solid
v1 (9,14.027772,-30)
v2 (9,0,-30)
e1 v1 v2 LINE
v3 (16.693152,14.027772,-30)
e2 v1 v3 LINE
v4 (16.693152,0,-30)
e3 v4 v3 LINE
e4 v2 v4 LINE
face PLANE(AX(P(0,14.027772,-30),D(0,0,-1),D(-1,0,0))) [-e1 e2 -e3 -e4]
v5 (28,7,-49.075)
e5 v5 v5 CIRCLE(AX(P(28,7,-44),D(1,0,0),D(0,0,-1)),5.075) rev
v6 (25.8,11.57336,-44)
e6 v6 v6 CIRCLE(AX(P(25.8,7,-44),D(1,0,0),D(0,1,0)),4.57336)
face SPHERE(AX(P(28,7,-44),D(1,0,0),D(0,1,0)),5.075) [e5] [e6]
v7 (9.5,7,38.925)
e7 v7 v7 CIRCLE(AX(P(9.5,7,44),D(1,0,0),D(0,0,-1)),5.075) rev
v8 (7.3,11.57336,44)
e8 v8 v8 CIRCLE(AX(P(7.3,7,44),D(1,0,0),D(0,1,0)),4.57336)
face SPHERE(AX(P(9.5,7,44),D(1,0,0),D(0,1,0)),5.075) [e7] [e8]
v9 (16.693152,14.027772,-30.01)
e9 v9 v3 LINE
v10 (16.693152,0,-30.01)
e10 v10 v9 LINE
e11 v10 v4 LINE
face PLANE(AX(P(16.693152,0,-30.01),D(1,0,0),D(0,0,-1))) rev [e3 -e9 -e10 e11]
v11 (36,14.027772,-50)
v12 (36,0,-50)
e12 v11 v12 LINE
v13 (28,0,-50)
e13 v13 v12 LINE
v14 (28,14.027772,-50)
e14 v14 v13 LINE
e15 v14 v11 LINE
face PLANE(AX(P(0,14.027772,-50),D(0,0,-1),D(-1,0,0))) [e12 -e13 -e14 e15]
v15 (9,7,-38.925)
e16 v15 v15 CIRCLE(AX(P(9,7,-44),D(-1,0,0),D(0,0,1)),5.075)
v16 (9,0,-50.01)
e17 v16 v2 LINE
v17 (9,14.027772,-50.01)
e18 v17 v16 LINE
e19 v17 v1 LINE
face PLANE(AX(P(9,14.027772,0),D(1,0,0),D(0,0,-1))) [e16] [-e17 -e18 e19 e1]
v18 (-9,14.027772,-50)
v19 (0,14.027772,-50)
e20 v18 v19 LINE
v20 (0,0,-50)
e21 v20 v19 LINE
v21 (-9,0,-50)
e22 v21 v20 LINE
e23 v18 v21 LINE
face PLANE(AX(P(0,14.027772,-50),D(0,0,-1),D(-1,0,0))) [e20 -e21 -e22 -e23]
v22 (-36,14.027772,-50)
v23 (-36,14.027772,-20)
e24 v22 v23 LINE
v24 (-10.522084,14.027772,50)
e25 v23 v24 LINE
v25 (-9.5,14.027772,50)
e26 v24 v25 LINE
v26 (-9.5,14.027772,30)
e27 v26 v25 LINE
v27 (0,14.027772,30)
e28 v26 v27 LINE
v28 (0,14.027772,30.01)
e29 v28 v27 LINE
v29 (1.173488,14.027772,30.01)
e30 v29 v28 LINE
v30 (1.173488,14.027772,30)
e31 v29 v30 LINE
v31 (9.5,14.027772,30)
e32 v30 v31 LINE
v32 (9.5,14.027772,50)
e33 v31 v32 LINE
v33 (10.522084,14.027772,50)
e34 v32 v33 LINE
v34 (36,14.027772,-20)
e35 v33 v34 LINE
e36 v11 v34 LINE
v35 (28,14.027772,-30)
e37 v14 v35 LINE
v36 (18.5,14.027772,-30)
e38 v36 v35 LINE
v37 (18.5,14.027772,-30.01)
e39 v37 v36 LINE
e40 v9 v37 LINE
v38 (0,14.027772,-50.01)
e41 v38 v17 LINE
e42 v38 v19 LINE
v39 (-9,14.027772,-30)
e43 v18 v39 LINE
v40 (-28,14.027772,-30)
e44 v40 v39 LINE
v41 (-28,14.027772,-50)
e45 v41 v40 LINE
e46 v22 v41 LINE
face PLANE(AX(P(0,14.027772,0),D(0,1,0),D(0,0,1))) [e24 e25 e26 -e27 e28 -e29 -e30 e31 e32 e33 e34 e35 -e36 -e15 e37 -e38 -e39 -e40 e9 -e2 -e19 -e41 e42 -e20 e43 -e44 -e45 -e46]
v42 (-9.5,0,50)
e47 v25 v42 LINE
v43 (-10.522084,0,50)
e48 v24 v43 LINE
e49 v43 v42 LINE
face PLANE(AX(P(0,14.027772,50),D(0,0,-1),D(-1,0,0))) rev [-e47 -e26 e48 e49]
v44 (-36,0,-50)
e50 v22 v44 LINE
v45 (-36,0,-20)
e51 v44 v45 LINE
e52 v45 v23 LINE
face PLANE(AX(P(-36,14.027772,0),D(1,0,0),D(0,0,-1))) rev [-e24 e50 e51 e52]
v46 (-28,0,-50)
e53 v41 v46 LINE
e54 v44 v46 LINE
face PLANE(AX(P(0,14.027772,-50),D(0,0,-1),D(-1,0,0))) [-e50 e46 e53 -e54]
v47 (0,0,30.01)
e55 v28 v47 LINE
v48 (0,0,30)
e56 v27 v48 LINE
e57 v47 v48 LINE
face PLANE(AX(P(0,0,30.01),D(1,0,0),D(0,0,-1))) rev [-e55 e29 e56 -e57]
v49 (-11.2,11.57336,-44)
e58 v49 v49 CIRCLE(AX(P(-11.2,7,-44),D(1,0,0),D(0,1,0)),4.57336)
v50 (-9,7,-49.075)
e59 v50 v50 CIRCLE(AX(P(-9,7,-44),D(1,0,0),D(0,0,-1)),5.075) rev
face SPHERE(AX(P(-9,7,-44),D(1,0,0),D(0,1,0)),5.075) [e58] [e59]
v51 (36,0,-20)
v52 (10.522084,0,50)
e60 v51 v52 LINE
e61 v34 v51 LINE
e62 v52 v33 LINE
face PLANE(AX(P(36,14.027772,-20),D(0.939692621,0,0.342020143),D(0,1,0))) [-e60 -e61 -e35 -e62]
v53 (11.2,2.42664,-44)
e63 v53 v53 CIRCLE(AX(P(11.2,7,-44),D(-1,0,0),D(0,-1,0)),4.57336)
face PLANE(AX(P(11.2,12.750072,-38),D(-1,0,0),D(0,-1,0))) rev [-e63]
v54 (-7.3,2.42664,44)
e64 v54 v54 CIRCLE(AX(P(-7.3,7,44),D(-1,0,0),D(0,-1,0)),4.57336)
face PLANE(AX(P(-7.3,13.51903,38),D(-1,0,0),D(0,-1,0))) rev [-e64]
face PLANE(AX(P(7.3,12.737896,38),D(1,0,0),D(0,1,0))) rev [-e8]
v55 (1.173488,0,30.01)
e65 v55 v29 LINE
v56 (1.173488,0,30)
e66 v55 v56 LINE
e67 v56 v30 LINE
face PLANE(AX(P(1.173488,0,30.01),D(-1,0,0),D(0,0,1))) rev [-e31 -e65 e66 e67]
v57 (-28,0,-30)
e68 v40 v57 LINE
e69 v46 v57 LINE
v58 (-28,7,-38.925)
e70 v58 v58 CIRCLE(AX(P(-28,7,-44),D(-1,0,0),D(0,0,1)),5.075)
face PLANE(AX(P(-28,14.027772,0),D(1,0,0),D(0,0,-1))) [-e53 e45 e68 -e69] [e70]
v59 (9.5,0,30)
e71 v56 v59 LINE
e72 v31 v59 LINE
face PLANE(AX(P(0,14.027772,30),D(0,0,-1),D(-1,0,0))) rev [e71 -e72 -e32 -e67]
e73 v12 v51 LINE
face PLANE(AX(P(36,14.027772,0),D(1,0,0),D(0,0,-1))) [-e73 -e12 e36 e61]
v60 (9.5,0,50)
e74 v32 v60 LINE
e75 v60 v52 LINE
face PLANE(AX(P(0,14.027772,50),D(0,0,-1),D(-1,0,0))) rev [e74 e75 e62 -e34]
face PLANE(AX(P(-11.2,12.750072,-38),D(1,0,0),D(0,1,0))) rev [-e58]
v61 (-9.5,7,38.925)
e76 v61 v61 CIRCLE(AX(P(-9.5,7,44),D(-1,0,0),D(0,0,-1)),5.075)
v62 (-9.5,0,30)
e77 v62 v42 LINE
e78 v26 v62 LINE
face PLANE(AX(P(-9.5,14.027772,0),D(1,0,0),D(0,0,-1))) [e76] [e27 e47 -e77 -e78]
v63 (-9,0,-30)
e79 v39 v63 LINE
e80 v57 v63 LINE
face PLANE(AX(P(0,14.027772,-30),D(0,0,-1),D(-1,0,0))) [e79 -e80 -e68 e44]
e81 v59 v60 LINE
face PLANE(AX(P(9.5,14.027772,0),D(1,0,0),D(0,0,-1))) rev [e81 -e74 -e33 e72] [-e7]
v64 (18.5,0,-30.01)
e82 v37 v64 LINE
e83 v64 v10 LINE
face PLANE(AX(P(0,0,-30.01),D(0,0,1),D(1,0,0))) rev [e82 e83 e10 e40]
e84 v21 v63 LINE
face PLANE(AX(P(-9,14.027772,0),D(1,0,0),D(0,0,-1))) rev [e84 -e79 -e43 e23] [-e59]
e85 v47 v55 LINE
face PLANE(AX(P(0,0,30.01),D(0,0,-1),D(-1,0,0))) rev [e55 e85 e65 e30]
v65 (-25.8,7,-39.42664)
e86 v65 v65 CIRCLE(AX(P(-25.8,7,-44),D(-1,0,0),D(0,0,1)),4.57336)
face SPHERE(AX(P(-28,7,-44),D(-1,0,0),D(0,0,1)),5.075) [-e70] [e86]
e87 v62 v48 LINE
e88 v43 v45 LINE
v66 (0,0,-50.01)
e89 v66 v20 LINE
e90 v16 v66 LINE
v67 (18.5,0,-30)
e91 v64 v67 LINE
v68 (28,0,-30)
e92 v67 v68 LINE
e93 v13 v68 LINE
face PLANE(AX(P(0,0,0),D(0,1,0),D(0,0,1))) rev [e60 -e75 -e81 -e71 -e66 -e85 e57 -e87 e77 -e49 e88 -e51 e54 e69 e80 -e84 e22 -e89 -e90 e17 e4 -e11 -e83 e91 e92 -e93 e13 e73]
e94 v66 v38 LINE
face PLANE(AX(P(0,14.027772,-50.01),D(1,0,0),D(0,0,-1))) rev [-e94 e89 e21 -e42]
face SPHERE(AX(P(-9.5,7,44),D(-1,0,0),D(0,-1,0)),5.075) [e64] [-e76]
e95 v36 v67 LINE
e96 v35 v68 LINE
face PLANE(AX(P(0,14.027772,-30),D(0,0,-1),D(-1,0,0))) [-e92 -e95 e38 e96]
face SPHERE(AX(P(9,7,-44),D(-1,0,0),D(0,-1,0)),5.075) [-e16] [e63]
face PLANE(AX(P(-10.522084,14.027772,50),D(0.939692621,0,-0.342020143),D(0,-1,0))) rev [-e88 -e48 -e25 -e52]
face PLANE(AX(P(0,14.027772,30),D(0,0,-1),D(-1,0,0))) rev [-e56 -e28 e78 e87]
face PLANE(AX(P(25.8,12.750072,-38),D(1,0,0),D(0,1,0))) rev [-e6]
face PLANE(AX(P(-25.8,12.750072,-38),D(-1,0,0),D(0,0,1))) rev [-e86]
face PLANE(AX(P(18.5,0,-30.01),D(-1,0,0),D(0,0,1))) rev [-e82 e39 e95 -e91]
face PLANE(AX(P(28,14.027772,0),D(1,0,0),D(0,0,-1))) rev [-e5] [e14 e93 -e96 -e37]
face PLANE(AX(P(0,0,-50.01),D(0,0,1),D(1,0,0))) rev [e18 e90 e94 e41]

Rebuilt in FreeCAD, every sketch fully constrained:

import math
import FreeCAD as App
import Part
import Sketcher


def edges_at(feature, points):
    """Names of the edges that pass closest to the given points."""
    edges = feature.Shape.Edges
    near = lambda p: min(range(len(edges)), key=lambda i: edges[i].distToShape(Part.Vertex(*p))[0])
    return sorted({f"Edge{near(p) + 1}" for p in points})

doc = App.newDocument("Part")
body = doc.addObject("PartDesign::Body", "Body")

# Sketch on XZ plane
sketch1 = doc.addObject("Sketcher::SketchObject", "Sketch")
body.addObject(sketch1)
sketch1.AttachmentSupport = (doc.XZ_Plane, [""])
sketch1.MapMode = "FlatFace"
sketch1.addGeometry(Part.LineSegment(App.Vector(-28, -50, 0), App.Vector(-36, -50, 0)), False)
sketch1.addGeometry(Part.LineSegment(App.Vector(-36, -50, 0), App.Vector(-36, 50, 0)), False)
sketch1.addGeometry(Part.LineSegment(App.Vector(-36, 50, 0), App.Vector(-9.5, 50, 0)), False)
sketch1.addGeometry(Part.LineSegment(App.Vector(-9.5, 50, 0), App.Vector(-9.5, 30, 0)), False)
sketch1.addGeometry(Part.LineSegment(App.Vector(-9.5, 30, 0), App.Vector(9.5, 30, 0)), False)
sketch1.addGeometry(Part.LineSegment(App.Vector(9.5, 30, 0), App.Vector(9.5, 50, 0)), False)
sketch1.addGeometry(Part.LineSegment(App.Vector(9.5, 50, 0), App.Vector(36, 50, 0)), False)
sketch1.addGeometry(Part.LineSegment(App.Vector(36, 50, 0), App.Vector(36, -50, 0)), False)
sketch1.addGeometry(Part.LineSegment(App.Vector(36, -50, 0), App.Vector(28, -50, 0)), False)
sketch1.addGeometry(Part.LineSegment(App.Vector(28, -50, 0), App.Vector(28, -30, 0)), False)
sketch1.addGeometry(Part.LineSegment(App.Vector(28, -30, 0), App.Vector(9, -30, 0)), False)
sketch1.addGeometry(Part.LineSegment(App.Vector(9, -30, 0), App.Vector(9, -50, 0)), False)
sketch1.addGeometry(Part.LineSegment(App.Vector(9, -50, 0), App.Vector(-9, -50, 0)), False)
sketch1.addGeometry(Part.LineSegment(App.Vector(-9, -50, 0), App.Vector(-9, -30, 0)), False)
sketch1.addGeometry(Part.LineSegment(App.Vector(-9, -30, 0), App.Vector(-28, -30, 0)), False)
sketch1.addGeometry(Part.LineSegment(App.Vector(-28, -30, 0), App.Vector(-28, -50, 0)), False)
sketch1.addConstraint(Sketcher.Constraint("Coincident", 0, 2, 1, 1))
sketch1.addConstraint(Sketcher.Constraint("Coincident", 1, 2, 2, 1))
sketch1.addConstraint(Sketcher.Constraint("Coincident", 2, 2, 3, 1))
sketch1.addConstraint(Sketcher.Constraint("Coincident", 3, 2, 4, 1))
sketch1.addConstraint(Sketcher.Constraint("Coincident", 4, 2, 5, 1))
sketch1.addConstraint(Sketcher.Constraint("Coincident", 5, 2, 6, 1))
sketch1.addConstraint(Sketcher.Constraint("Coincident", 6, 2, 7, 1))
sketch1.addConstraint(Sketcher.Constraint("Coincident", 7, 2, 8, 1))
sketch1.addConstraint(Sketcher.Constraint("Coincident", 8, 2, 9, 1))
sketch1.addConstraint(Sketcher.Constraint("Coincident", 9, 2, 10, 1))
sketch1.addConstraint(Sketcher.Constraint("Coincident", 10, 2, 11, 1))
sketch1.addConstraint(Sketcher.Constraint("Coincident", 11, 2, 12, 1))
sketch1.addConstraint(Sketcher.Constraint("Coincident", 12, 2, 13, 1))
sketch1.addConstraint(Sketcher.Constraint("Coincident", 13, 2, 14, 1))
sketch1.addConstraint(Sketcher.Constraint("Coincident", 14, 2, 15, 1))
sketch1.addConstraint(Sketcher.Constraint("Coincident", 15, 2, 0, 1))
sketch1.addConstraint(Sketcher.Constraint("Horizontal", 0))
sketch1.addConstraint(Sketcher.Constraint("Vertical", 1))
sketch1.addConstraint(Sketcher.Constraint("Horizontal", 2))
sketch1.addConstraint(Sketcher.Constraint("Vertical", 3))
sketch1.addConstraint(Sketcher.Constraint("Horizontal", 4))
sketch1.addConstraint(Sketcher.Constraint("Vertical", 5))
sketch1.addConstraint(Sketcher.Constraint("Horizontal", 6))
sketch1.addConstraint(Sketcher.Constraint("Vertical", 7))
sketch1.addConstraint(Sketcher.Constraint("Horizontal", 8))
sketch1.addConstraint(Sketcher.Constraint("Vertical", 9))
sketch1.addConstraint(Sketcher.Constraint("Horizontal", 10))
sketch1.addConstraint(Sketcher.Constraint("Vertical", 11))
sketch1.addConstraint(Sketcher.Constraint("Horizontal", 12))
sketch1.addConstraint(Sketcher.Constraint("Vertical", 13))
sketch1.addConstraint(Sketcher.Constraint("Horizontal", 14))
sketch1.addConstraint(Sketcher.Constraint("Vertical", 15))
sketch1.addConstraint(Sketcher.Constraint("Symmetric", 0, 2, 6, 2, -1, 1))
sketch1.addConstraint(Sketcher.Constraint("Symmetric", 2, 2, 5, 2, -2))
sketch1.addConstraint(Sketcher.Constraint("Symmetric", 10, 2, 13, 2, -2))
sketch1.addConstraint(Sketcher.Constraint("Symmetric", 8, 2, 15, 2, -2))
sketch1.addConstraint(Sketcher.Constraint("Horizontal", 8, 2, 11, 2))
sketch1.addConstraint(Sketcher.Constraint("Equal", 4, 10))
sketch1.addConstraint(Sketcher.Constraint("Equal", 5, 9))
sketch1.addConstraint(Sketcher.Constraint("DistanceX", 0, 2, 0, 1, 8.0))
sketch1.addConstraint(Sketcher.Constraint("DistanceX", 4, 1, 4, 2, 19.0))
sketch1.addConstraint(Sketcher.Constraint("DistanceX", 12, 2, 12, 1, 18.0))
sketch1.addConstraint(Sketcher.Constraint("DistanceY", 1, 1, 1, 2, 100.0))
sketch1.addConstraint(Sketcher.Constraint("DistanceY", 3, 2, 3, 1, 20.0))
pad1 = doc.addObject("PartDesign::Pad", "Pad")
body.addObject(pad1)
pad1.Profile = sketch1
pad1.Length = 14.027772
pad1.Reversed = True
doc.recompute()

chamfer = doc.addObject("PartDesign::Chamfer", "Chamfer")
body.addObject(chamfer)
chamfer.Base = (pad1, edges_at(pad1, [(36, 7.014, 50)]))
chamfer.ChamferType = "Two distances"
chamfer.Size = 70
chamfer.Size2 = 25.477916
chamfer.FlipDirection = True
doc.recompute()

chamfer2 = doc.addObject("PartDesign::Chamfer", "Chamfer001")
body.addObject(chamfer2)
chamfer2.Base = (chamfer, edges_at(chamfer, [(-36, 7.014, 50)]))
chamfer2.ChamferType = "Two distances"
chamfer2.Size = 70
chamfer2.Size2 = 25.477916
chamfer2.FlipDirection = True

# Sketch on YZ plane
sketch2 = doc.addObject("Sketcher::SketchObject", "Sketch001")
body.addObject(sketch2)
sketch2.AttachmentSupport = (doc.YZ_Plane, [""])
sketch2.MapMode = "FlatFace"
sketch2.AttachmentOffset = App.Placement(App.Vector(0, 0, -9.5), App.Rotation())
sketch2.addGeometry(Part.LineSegment(App.Vector(7, 49.075, 0), App.Vector(7, 38.925, 0)), False)
sketch2.addGeometry(Part.ArcOfCircle(Part.Circle(App.Vector(7, 44, 0), App.Vector(0, 0, 1), 5.075), math.radians(-90), math.radians(90)), False)
sketch2.addGeometry(Part.LineSegment(App.Vector(7, 49.075, 0), App.Vector(7, 38.925, 0)), True)  # axis
sketch2.addConstraint(Sketcher.Constraint("Coincident", 0, 1, 1, 2))
sketch2.addConstraint(Sketcher.Constraint("Coincident", 1, 1, 0, 2))
sketch2.addConstraint(Sketcher.Constraint("Vertical", 0))
sketch2.addConstraint(Sketcher.Constraint("Vertical", 2))
sketch2.addConstraint(Sketcher.Constraint("Coincident", 2, 1, 0, 1))
sketch2.addConstraint(Sketcher.Constraint("Vertical", 1, 3, 0, 1))
sketch2.addConstraint(Sketcher.Constraint("Equal", 0, 2))
sketch2.addConstraint(Sketcher.Constraint("DistanceX", -1, 1, 1, 3, 7.0))
sketch2.addConstraint(Sketcher.Constraint("DistanceY", -1, 1, 1, 3, 44.0))
sketch2.addConstraint(Sketcher.Constraint("Radius", 1, 5.075))
revolution = doc.addObject("PartDesign::Revolution", "Revolution")
body.addObject(revolution)
revolution.Profile = sketch2
revolution.ReferenceAxis = (sketch2, ["Axis0"])
revolution.Angle = 180

# Sketch on XY plane
sketch3 = doc.addObject("Sketcher::SketchObject", "Sketch002")
body.addObject(sketch3)
sketch3.AttachmentSupport = (doc.XY_Plane, [""])
sketch3.MapMode = "FlatFace"
sketch3.AttachmentOffset = App.Placement(App.Vector(0, 0, 50), App.Rotation())
sketch3.addGeometry(Part.LineSegment(App.Vector(-7.3, 13.51903, 0), App.Vector(-7.3, 1.51947, 0)), False)
sketch3.addGeometry(Part.LineSegment(App.Vector(-7.3, 1.51947, 0), App.Vector(-3.927575, 1.51947, 0)), False)
sketch3.addGeometry(Part.LineSegment(App.Vector(-3.927575, 1.51947, 0), App.Vector(-3.927575, 13.51903, 0)), False)
sketch3.addGeometry(Part.LineSegment(App.Vector(-3.927575, 13.51903, 0), App.Vector(-7.3, 13.51903, 0)), False)
sketch3.addConstraint(Sketcher.Constraint("Coincident", 0, 2, 1, 1))
sketch3.addConstraint(Sketcher.Constraint("Coincident", 1, 2, 2, 1))
sketch3.addConstraint(Sketcher.Constraint("Coincident", 2, 2, 3, 1))
sketch3.addConstraint(Sketcher.Constraint("Coincident", 3, 2, 0, 1))
sketch3.addConstraint(Sketcher.Constraint("Vertical", 0))
sketch3.addConstraint(Sketcher.Constraint("Horizontal", 1))
sketch3.addConstraint(Sketcher.Constraint("Vertical", 2))
sketch3.addConstraint(Sketcher.Constraint("Horizontal", 3))
sketch3.addConstraint(Sketcher.Constraint("DistanceX", 0, 2, -1, 1, 7.3))
sketch3.addConstraint(Sketcher.Constraint("DistanceY", 0, 2, 0, 1, 11.99956))
sketch3.addConstraint(Sketcher.Constraint("DistanceX", 1, 1, 1, 2, 3.372425))
sketch3.addConstraint(Sketcher.Constraint("DistanceY", -1, 1, 0, 2, 1.51947))
pocket1 = doc.addObject("PartDesign::Pocket", "Pocket")
body.addObject(pocket1)
pocket1.Profile = sketch3
pocket1.Length = 12

# Sketch on YZ plane
sketch4 = doc.addObject("Sketcher::SketchObject", "Sketch003")
body.addObject(sketch4)
sketch4.AttachmentSupport = (doc.YZ_Plane, [""])
sketch4.MapMode = "FlatFace"
sketch4.AttachmentOffset = App.Placement(App.Vector(0, 0, -28), App.Rotation())
sketch4.addGeometry(Part.LineSegment(App.Vector(7, -38.925, 0), App.Vector(7, -49.075, 0)), False)
sketch4.addGeometry(Part.ArcOfCircle(Part.Circle(App.Vector(7, -44, 0), App.Vector(0, 0, 1), 5.075), math.radians(-90), math.radians(90)), False)
sketch4.addGeometry(Part.LineSegment(App.Vector(7, -38.925, 0), App.Vector(7, -49.075, 0)), True)  # axis
sketch4.addConstraint(Sketcher.Constraint("Coincident", 0, 1, 1, 2))
sketch4.addConstraint(Sketcher.Constraint("Coincident", 1, 1, 0, 2))
sketch4.addConstraint(Sketcher.Constraint("Vertical", 0))
sketch4.addConstraint(Sketcher.Constraint("Vertical", 2))
sketch4.addConstraint(Sketcher.Constraint("Coincident", 2, 1, 0, 1))
sketch4.addConstraint(Sketcher.Constraint("Vertical", 1, 3, 0, 1))
sketch4.addConstraint(Sketcher.Constraint("Equal", 0, 2))
sketch4.addConstraint(Sketcher.Constraint("DistanceX", -1, 1, 1, 3, 7.0))
sketch4.addConstraint(Sketcher.Constraint("DistanceY", 1, 3, -1, 1, 44.0))
sketch4.addConstraint(Sketcher.Constraint("Radius", 1, 5.075))
revolution2 = doc.addObject("PartDesign::Revolution", "Revolution001")
body.addObject(revolution2)
revolution2.Profile = sketch4
revolution2.ReferenceAxis = (sketch4, ["Axis0"])
revolution2.Angle = 180

# Sketch on XY plane
sketch5 = doc.addObject("Sketcher::SketchObject", "Sketch004")
body.addObject(sketch5)
sketch5.AttachmentSupport = (doc.XY_Plane, [""])
sketch5.MapMode = "FlatFace"
sketch5.AttachmentOffset = App.Placement(App.Vector(0, 0, -50), App.Rotation())
sketch5.addGeometry(Part.LineSegment(App.Vector(9, 14.027772, 0), App.Vector(9, 0, 0)), False)
sketch5.addGeometry(Part.LineSegment(App.Vector(9, 0, 0), App.Vector(0, 0, 0)), False)
sketch5.addGeometry(Part.LineSegment(App.Vector(0, 0, 0), App.Vector(0, 14.027772, 0)), False)
sketch5.addGeometry(Part.LineSegment(App.Vector(0, 14.027772, 0), App.Vector(9, 14.027772, 0)), False)
sketch5.addConstraint(Sketcher.Constraint("Coincident", 0, 2, 1, 1))
sketch5.addConstraint(Sketcher.Constraint("Coincident", 1, 2, 2, 1))
sketch5.addConstraint(Sketcher.Constraint("Coincident", 2, 2, 3, 1))
sketch5.addConstraint(Sketcher.Constraint("Coincident", 3, 2, 0, 1))
sketch5.addConstraint(Sketcher.Constraint("Vertical", 0))
sketch5.addConstraint(Sketcher.Constraint("Horizontal", 1))
sketch5.addConstraint(Sketcher.Constraint("Vertical", 2))
sketch5.addConstraint(Sketcher.Constraint("Horizontal", 3))
sketch5.addConstraint(Sketcher.Constraint("Coincident", 1, 2, -1, 1))
sketch5.addConstraint(Sketcher.Constraint("DistanceX", 1, 2, 1, 1, 9.0))
sketch5.addConstraint(Sketcher.Constraint("DistanceY", 0, 2, 0, 1, 14.027772))
pad2 = doc.addObject("PartDesign::Pad", "Pad001")
body.addObject(pad2)
pad2.Profile = sketch5
pad2.Length = 0.01
pad2.Reversed = True
doc.recompute()

mirrored = doc.addObject("PartDesign::Mirrored", "Mirrored")
body.addObject(mirrored)
mirrored.Originals = [revolution2]
mirrored.MirrorPlane = (doc.YZ_Plane, [""])
body.Tip = mirrored

# Sketch on XY plane
sketch6 = doc.addObject("Sketcher::SketchObject", "Sketch005")
body.addObject(sketch6)
sketch6.AttachmentSupport = (doc.XY_Plane, [""])
sketch6.MapMode = "FlatFace"
sketch6.AttachmentOffset = App.Placement(App.Vector(0, 0, 30), App.Rotation())
sketch6.addGeometry(Part.LineSegment(App.Vector(0, 14.027772, 0), App.Vector(0, 0, 0)), False)
sketch6.addGeometry(Part.LineSegment(App.Vector(0, 0, 0), App.Vector(1.173488, 0, 0)), False)
sketch6.addGeometry(Part.LineSegment(App.Vector(1.173488, 0, 0), App.Vector(1.173488, 14.027772, 0)), False)
sketch6.addGeometry(Part.LineSegment(App.Vector(1.173488, 14.027772, 0), App.Vector(0, 14.027772, 0)), False)
sketch6.addConstraint(Sketcher.Constraint("Coincident", 0, 2, 1, 1))
sketch6.addConstraint(Sketcher.Constraint("Coincident", 1, 2, 2, 1))
sketch6.addConstraint(Sketcher.Constraint("Coincident", 2, 2, 3, 1))
sketch6.addConstraint(Sketcher.Constraint("Coincident", 3, 2, 0, 1))
sketch6.addConstraint(Sketcher.Constraint("Vertical", 0))
sketch6.addConstraint(Sketcher.Constraint("Horizontal", 1))
sketch6.addConstraint(Sketcher.Constraint("Vertical", 2))
sketch6.addConstraint(Sketcher.Constraint("Horizontal", 3))
sketch6.addConstraint(Sketcher.Constraint("Coincident", 0, 2, -1, 1))
sketch6.addConstraint(Sketcher.Constraint("DistanceX", 1, 1, 1, 2, 1.173488))
sketch6.addConstraint(Sketcher.Constraint("DistanceY", 0, 2, 0, 1, 14.027772))
pad3 = doc.addObject("PartDesign::Pad", "Pad002")
body.addObject(pad3)
pad3.Profile = sketch6
pad3.Length = 0.01
doc.recompute()

mirrored2 = doc.addObject("PartDesign::Mirrored", "Mirrored001")
body.addObject(mirrored2)
mirrored2.Originals = [revolution]
mirrored2.MirrorPlane = (doc.YZ_Plane, [""])
body.Tip = mirrored2

# Sketch on XY plane
sketch7 = doc.addObject("Sketcher::SketchObject", "Sketch006")
body.addObject(sketch7)
sketch7.AttachmentSupport = (doc.XY_Plane, [""])
sketch7.MapMode = "FlatFace"
sketch7.AttachmentOffset = App.Placement(App.Vector(0, 0, 50), App.Rotation())
sketch7.addGeometry(Part.LineSegment(App.Vector(3.702683, 12.737896, 0), App.Vector(3.702683, 1.392511, 0)), False)
sketch7.addGeometry(Part.LineSegment(App.Vector(3.702683, 1.392511, 0), App.Vector(7.3, 1.392511, 0)), False)
sketch7.addGeometry(Part.LineSegment(App.Vector(7.3, 1.392511, 0), App.Vector(7.3, 12.737896, 0)), False)
sketch7.addGeometry(Part.LineSegment(App.Vector(7.3, 12.737896, 0), App.Vector(3.702683, 12.737896, 0)), False)
sketch7.addConstraint(Sketcher.Constraint("Coincident", 0, 2, 1, 1))
sketch7.addConstraint(Sketcher.Constraint("Coincident", 1, 2, 2, 1))
sketch7.addConstraint(Sketcher.Constraint("Coincident", 2, 2, 3, 1))
sketch7.addConstraint(Sketcher.Constraint("Coincident", 3, 2, 0, 1))
sketch7.addConstraint(Sketcher.Constraint("Vertical", 0))
sketch7.addConstraint(Sketcher.Constraint("Horizontal", 1))
sketch7.addConstraint(Sketcher.Constraint("Vertical", 2))
sketch7.addConstraint(Sketcher.Constraint("Horizontal", 3))
sketch7.addConstraint(Sketcher.Constraint("DistanceX", -1, 1, 1, 2, 7.3))
sketch7.addConstraint(Sketcher.Constraint("DistanceX", 1, 1, 1, 2, 3.597317))
sketch7.addConstraint(Sketcher.Constraint("DistanceY", 0, 2, 0, 1, 11.345385))
sketch7.addConstraint(Sketcher.Constraint("DistanceY", -1, 1, 0, 2, 1.392511))
pocket2 = doc.addObject("PartDesign::Pocket", "Pocket001")
body.addObject(pocket2)
pocket2.Profile = sketch7
pocket2.Length = 12

# Sketch on XY plane
sketch8 = doc.addObject("Sketcher::SketchObject", "Sketch007")
body.addObject(sketch8)
sketch8.AttachmentSupport = (doc.XY_Plane, [""])
sketch8.MapMode = "FlatFace"
sketch8.AttachmentOffset = App.Placement(App.Vector(0, 0, -30), App.Rotation())
sketch8.addGeometry(Part.LineSegment(App.Vector(18.5, 14.027772, 0), App.Vector(18.5, 0, 0)), False)
sketch8.addGeometry(Part.LineSegment(App.Vector(18.5, 0, 0), App.Vector(16.693152, 0, 0)), False)
sketch8.addGeometry(Part.LineSegment(App.Vector(16.693152, 0, 0), App.Vector(16.693152, 14.027772, 0)), False)
sketch8.addGeometry(Part.LineSegment(App.Vector(16.693152, 14.027772, 0), App.Vector(18.5, 14.027772, 0)), False)
sketch8.addConstraint(Sketcher.Constraint("Coincident", 0, 2, 1, 1))
sketch8.addConstraint(Sketcher.Constraint("Coincident", 1, 2, 2, 1))
sketch8.addConstraint(Sketcher.Constraint("Coincident", 2, 2, 3, 1))
sketch8.addConstraint(Sketcher.Constraint("Coincident", 3, 2, 0, 1))
sketch8.addConstraint(Sketcher.Constraint("Vertical", 0))
sketch8.addConstraint(Sketcher.Constraint("Horizontal", 1))
sketch8.addConstraint(Sketcher.Constraint("Vertical", 2))
sketch8.addConstraint(Sketcher.Constraint("Horizontal", 3))
sketch8.addConstraint(Sketcher.Constraint("PointOnObject", 0, 2, -1))
sketch8.addConstraint(Sketcher.Constraint("DistanceX", -1, 1, 0, 2, 18.5))
sketch8.addConstraint(Sketcher.Constraint("DistanceY", 0, 2, 0, 1, 14.027772))
sketch8.addConstraint(Sketcher.Constraint("DistanceX", 1, 2, 1, 1, 1.806848))
pad4 = doc.addObject("PartDesign::Pad", "Pad003")
body.addObject(pad4)
pad4.Profile = sketch8
pad4.Length = 0.01
pad4.Reversed = True

# Sketch on YZ plane
sketch9 = doc.addObject("Sketcher::SketchObject", "Sketch008")
body.addObject(sketch9)
sketch9.AttachmentSupport = (doc.YZ_Plane, [""])
sketch9.MapMode = "FlatFace"
sketch9.AttachmentOffset = App.Placement(App.Vector(0, 0, 9), App.Rotation())
sketch9.addGeometry(Part.LineSegment(App.Vector(7, -38.925, 0), App.Vector(7, -49.075, 0)), False)
sketch9.addGeometry(Part.ArcOfCircle(Part.Circle(App.Vector(7, -44, 0), App.Vector(0, 0, 1), 5.075), math.radians(-90), math.radians(90)), False)
sketch9.addGeometry(Part.LineSegment(App.Vector(7, -38.925, 0), App.Vector(7, -49.075, 0)), True)  # axis
sketch9.addConstraint(Sketcher.Constraint("Coincident", 0, 1, 1, 2))
sketch9.addConstraint(Sketcher.Constraint("Coincident", 1, 1, 0, 2))
sketch9.addConstraint(Sketcher.Constraint("Vertical", 0))
sketch9.addConstraint(Sketcher.Constraint("Vertical", 2))
sketch9.addConstraint(Sketcher.Constraint("Coincident", 2, 1, 0, 1))
sketch9.addConstraint(Sketcher.Constraint("Vertical", 1, 3, 0, 1))
sketch9.addConstraint(Sketcher.Constraint("Equal", 0, 2))
sketch9.addConstraint(Sketcher.Constraint("DistanceX", -1, 1, 1, 3, 7.0))
sketch9.addConstraint(Sketcher.Constraint("DistanceY", 1, 3, -1, 1, 44.0))
sketch9.addConstraint(Sketcher.Constraint("Radius", 1, 5.075))
revolution3 = doc.addObject("PartDesign::Revolution", "Revolution002")
body.addObject(revolution3)
revolution3.Profile = sketch9
revolution3.ReferenceAxis = (sketch9, ["Axis0"])
revolution3.Angle = 180

# Sketch on YZ plane
sketch10 = doc.addObject("Sketcher::SketchObject", "Sketch009")
body.addObject(sketch10)
sketch10.AttachmentSupport = (doc.YZ_Plane, [""])
sketch10.MapMode = "FlatFace"
sketch10.AttachmentOffset = App.Placement(App.Vector(0, 0, -9), App.Rotation())
sketch10.addGeometry(Part.LineSegment(App.Vector(7, -49.075, 0), App.Vector(7, -38.925, 0)), False)
sketch10.addGeometry(Part.ArcOfCircle(Part.Circle(App.Vector(7, -44, 0), App.Vector(0, 0, 1), 5.075), math.radians(-90), math.radians(90)), False)
sketch10.addGeometry(Part.LineSegment(App.Vector(7, -49.075, 0), App.Vector(7, -38.925, 0)), True)  # axis
sketch10.addConstraint(Sketcher.Constraint("Coincident", 0, 1, 1, 1))
sketch10.addConstraint(Sketcher.Constraint("Coincident", 1, 2, 0, 2))
sketch10.addConstraint(Sketcher.Constraint("Vertical", 0))
sketch10.addConstraint(Sketcher.Constraint("Vertical", 2))
sketch10.addConstraint(Sketcher.Constraint("Coincident", 2, 1, 0, 1))
sketch10.addConstraint(Sketcher.Constraint("Vertical", 1, 3, 0, 1))
sketch10.addConstraint(Sketcher.Constraint("Equal", 0, 2))
sketch10.addConstraint(Sketcher.Constraint("DistanceX", -1, 1, 1, 3, 7.0))
sketch10.addConstraint(Sketcher.Constraint("DistanceY", 1, 3, -1, 1, 44.0))
sketch10.addConstraint(Sketcher.Constraint("Radius", 1, 5.075))
revolution4 = doc.addObject("PartDesign::Revolution", "Revolution003")
body.addObject(revolution4)
revolution4.Profile = sketch10
revolution4.ReferenceAxis = (sketch10, ["Axis0"])
revolution4.Angle = 180

# Sketch on YZ plane
sketch11 = doc.addObject("Sketcher::SketchObject", "Sketch010")
body.addObject(sketch11)
sketch11.AttachmentSupport = (doc.YZ_Plane, [""])
sketch11.MapMode = "FlatFace"
sketch11.AttachmentOffset = App.Placement(App.Vector(0, 0, 28), App.Rotation())
sketch11.addGeometry(Part.LineSegment(App.Vector(7, -49.075, 0), App.Vector(7, -38.925, 0)), False)
sketch11.addGeometry(Part.ArcOfCircle(Part.Circle(App.Vector(7, -44, 0), App.Vector(0, 0, 1), 5.075), math.radians(-90), math.radians(90)), False)
sketch11.addGeometry(Part.LineSegment(App.Vector(7, -49.075, 0), App.Vector(7, -38.925, 0)), True)  # axis
sketch11.addConstraint(Sketcher.Constraint("Coincident", 0, 1, 1, 1))
sketch11.addConstraint(Sketcher.Constraint("Coincident", 1, 2, 0, 2))
sketch11.addConstraint(Sketcher.Constraint("Vertical", 0))
sketch11.addConstraint(Sketcher.Constraint("Vertical", 2))
sketch11.addConstraint(Sketcher.Constraint("Coincident", 2, 1, 0, 1))
sketch11.addConstraint(Sketcher.Constraint("Vertical", 1, 3, 0, 1))
sketch11.addConstraint(Sketcher.Constraint("Equal", 0, 2))
sketch11.addConstraint(Sketcher.Constraint("DistanceX", -1, 1, 1, 3, 7.0))
sketch11.addConstraint(Sketcher.Constraint("DistanceY", 1, 3, -1, 1, 44.0))
sketch11.addConstraint(Sketcher.Constraint("Radius", 1, 5.075))
revolution5 = doc.addObject("PartDesign::Revolution", "Revolution004")
body.addObject(revolution5)
revolution5.Profile = sketch11
revolution5.ReferenceAxis = (sketch11, ["Axis0"])
revolution5.Angle = 180

# Sketch on XY plane
sketch12 = doc.addObject("Sketcher::SketchObject", "Sketch011")
body.addObject(sketch12)
sketch12.AttachmentSupport = (doc.XY_Plane, [""])
sketch12.MapMode = "FlatFace"
sketch12.AttachmentOffset = App.Placement(App.Vector(0, 0, -50), App.Rotation())
sketch12.addGeometry(Part.LineSegment(App.Vector(25.8, 12.750072, 0), App.Vector(25.8, 1.215479, 0)), False)
sketch12.addGeometry(Part.LineSegment(App.Vector(25.8, 1.215479, 0), App.Vector(11.2, 1.215479, 0)), False)
sketch12.addGeometry(Part.LineSegment(App.Vector(11.2, 1.215479, 0), App.Vector(11.2, 12.750072, 0)), False)
sketch12.addGeometry(Part.LineSegment(App.Vector(11.2, 12.750072, 0), App.Vector(25.8, 12.750072, 0)), False)
sketch12.addGeometry(Part.LineSegment(App.Vector(-11.2, 12.750072, 0), App.Vector(-11.2, 1.215479, 0)), False)
sketch12.addGeometry(Part.LineSegment(App.Vector(-11.2, 1.215479, 0), App.Vector(-25.8, 1.215479, 0)), False)
sketch12.addGeometry(Part.LineSegment(App.Vector(-25.8, 1.215479, 0), App.Vector(-25.8, 12.750072, 0)), False)
sketch12.addGeometry(Part.LineSegment(App.Vector(-25.8, 12.750072, 0), App.Vector(-11.2, 12.750072, 0)), False)
sketch12.addConstraint(Sketcher.Constraint("Coincident", 0, 2, 1, 1))
sketch12.addConstraint(Sketcher.Constraint("Coincident", 1, 2, 2, 1))
sketch12.addConstraint(Sketcher.Constraint("Coincident", 2, 2, 3, 1))
sketch12.addConstraint(Sketcher.Constraint("Coincident", 3, 2, 0, 1))
sketch12.addConstraint(Sketcher.Constraint("Coincident", 4, 2, 5, 1))
sketch12.addConstraint(Sketcher.Constraint("Coincident", 5, 2, 6, 1))
sketch12.addConstraint(Sketcher.Constraint("Coincident", 6, 2, 7, 1))
sketch12.addConstraint(Sketcher.Constraint("Coincident", 7, 2, 4, 1))
sketch12.addConstraint(Sketcher.Constraint("Vertical", 0))
sketch12.addConstraint(Sketcher.Constraint("Horizontal", 1))
sketch12.addConstraint(Sketcher.Constraint("Vertical", 2))
sketch12.addConstraint(Sketcher.Constraint("Horizontal", 3))
sketch12.addConstraint(Sketcher.Constraint("Vertical", 4))
sketch12.addConstraint(Sketcher.Constraint("Horizontal", 5))
sketch12.addConstraint(Sketcher.Constraint("Vertical", 6))
sketch12.addConstraint(Sketcher.Constraint("Horizontal", 7))
sketch12.addConstraint(Sketcher.Constraint("Symmetric", 1, 2, 4, 2, -2))
sketch12.addConstraint(Sketcher.Constraint("Symmetric", 3, 2, 6, 2, -2))
sketch12.addConstraint(Sketcher.Constraint("DistanceX", 1, 2, 1, 1, 14.6))
sketch12.addConstraint(Sketcher.Constraint("DistanceX", 4, 2, 0, 2, 37.0))
sketch12.addConstraint(Sketcher.Constraint("DistanceY", 0, 2, 0, 1, 11.534593))
sketch12.addConstraint(Sketcher.Constraint("DistanceY", -1, 1, 0, 2, 1.215479))
pocket3 = doc.addObject("PartDesign::Pocket", "Pocket002")
body.addObject(pocket3)
pocket3.Profile = sketch12
pocket3.Length = 12
pocket3.Reversed = True

doc.recompute()
